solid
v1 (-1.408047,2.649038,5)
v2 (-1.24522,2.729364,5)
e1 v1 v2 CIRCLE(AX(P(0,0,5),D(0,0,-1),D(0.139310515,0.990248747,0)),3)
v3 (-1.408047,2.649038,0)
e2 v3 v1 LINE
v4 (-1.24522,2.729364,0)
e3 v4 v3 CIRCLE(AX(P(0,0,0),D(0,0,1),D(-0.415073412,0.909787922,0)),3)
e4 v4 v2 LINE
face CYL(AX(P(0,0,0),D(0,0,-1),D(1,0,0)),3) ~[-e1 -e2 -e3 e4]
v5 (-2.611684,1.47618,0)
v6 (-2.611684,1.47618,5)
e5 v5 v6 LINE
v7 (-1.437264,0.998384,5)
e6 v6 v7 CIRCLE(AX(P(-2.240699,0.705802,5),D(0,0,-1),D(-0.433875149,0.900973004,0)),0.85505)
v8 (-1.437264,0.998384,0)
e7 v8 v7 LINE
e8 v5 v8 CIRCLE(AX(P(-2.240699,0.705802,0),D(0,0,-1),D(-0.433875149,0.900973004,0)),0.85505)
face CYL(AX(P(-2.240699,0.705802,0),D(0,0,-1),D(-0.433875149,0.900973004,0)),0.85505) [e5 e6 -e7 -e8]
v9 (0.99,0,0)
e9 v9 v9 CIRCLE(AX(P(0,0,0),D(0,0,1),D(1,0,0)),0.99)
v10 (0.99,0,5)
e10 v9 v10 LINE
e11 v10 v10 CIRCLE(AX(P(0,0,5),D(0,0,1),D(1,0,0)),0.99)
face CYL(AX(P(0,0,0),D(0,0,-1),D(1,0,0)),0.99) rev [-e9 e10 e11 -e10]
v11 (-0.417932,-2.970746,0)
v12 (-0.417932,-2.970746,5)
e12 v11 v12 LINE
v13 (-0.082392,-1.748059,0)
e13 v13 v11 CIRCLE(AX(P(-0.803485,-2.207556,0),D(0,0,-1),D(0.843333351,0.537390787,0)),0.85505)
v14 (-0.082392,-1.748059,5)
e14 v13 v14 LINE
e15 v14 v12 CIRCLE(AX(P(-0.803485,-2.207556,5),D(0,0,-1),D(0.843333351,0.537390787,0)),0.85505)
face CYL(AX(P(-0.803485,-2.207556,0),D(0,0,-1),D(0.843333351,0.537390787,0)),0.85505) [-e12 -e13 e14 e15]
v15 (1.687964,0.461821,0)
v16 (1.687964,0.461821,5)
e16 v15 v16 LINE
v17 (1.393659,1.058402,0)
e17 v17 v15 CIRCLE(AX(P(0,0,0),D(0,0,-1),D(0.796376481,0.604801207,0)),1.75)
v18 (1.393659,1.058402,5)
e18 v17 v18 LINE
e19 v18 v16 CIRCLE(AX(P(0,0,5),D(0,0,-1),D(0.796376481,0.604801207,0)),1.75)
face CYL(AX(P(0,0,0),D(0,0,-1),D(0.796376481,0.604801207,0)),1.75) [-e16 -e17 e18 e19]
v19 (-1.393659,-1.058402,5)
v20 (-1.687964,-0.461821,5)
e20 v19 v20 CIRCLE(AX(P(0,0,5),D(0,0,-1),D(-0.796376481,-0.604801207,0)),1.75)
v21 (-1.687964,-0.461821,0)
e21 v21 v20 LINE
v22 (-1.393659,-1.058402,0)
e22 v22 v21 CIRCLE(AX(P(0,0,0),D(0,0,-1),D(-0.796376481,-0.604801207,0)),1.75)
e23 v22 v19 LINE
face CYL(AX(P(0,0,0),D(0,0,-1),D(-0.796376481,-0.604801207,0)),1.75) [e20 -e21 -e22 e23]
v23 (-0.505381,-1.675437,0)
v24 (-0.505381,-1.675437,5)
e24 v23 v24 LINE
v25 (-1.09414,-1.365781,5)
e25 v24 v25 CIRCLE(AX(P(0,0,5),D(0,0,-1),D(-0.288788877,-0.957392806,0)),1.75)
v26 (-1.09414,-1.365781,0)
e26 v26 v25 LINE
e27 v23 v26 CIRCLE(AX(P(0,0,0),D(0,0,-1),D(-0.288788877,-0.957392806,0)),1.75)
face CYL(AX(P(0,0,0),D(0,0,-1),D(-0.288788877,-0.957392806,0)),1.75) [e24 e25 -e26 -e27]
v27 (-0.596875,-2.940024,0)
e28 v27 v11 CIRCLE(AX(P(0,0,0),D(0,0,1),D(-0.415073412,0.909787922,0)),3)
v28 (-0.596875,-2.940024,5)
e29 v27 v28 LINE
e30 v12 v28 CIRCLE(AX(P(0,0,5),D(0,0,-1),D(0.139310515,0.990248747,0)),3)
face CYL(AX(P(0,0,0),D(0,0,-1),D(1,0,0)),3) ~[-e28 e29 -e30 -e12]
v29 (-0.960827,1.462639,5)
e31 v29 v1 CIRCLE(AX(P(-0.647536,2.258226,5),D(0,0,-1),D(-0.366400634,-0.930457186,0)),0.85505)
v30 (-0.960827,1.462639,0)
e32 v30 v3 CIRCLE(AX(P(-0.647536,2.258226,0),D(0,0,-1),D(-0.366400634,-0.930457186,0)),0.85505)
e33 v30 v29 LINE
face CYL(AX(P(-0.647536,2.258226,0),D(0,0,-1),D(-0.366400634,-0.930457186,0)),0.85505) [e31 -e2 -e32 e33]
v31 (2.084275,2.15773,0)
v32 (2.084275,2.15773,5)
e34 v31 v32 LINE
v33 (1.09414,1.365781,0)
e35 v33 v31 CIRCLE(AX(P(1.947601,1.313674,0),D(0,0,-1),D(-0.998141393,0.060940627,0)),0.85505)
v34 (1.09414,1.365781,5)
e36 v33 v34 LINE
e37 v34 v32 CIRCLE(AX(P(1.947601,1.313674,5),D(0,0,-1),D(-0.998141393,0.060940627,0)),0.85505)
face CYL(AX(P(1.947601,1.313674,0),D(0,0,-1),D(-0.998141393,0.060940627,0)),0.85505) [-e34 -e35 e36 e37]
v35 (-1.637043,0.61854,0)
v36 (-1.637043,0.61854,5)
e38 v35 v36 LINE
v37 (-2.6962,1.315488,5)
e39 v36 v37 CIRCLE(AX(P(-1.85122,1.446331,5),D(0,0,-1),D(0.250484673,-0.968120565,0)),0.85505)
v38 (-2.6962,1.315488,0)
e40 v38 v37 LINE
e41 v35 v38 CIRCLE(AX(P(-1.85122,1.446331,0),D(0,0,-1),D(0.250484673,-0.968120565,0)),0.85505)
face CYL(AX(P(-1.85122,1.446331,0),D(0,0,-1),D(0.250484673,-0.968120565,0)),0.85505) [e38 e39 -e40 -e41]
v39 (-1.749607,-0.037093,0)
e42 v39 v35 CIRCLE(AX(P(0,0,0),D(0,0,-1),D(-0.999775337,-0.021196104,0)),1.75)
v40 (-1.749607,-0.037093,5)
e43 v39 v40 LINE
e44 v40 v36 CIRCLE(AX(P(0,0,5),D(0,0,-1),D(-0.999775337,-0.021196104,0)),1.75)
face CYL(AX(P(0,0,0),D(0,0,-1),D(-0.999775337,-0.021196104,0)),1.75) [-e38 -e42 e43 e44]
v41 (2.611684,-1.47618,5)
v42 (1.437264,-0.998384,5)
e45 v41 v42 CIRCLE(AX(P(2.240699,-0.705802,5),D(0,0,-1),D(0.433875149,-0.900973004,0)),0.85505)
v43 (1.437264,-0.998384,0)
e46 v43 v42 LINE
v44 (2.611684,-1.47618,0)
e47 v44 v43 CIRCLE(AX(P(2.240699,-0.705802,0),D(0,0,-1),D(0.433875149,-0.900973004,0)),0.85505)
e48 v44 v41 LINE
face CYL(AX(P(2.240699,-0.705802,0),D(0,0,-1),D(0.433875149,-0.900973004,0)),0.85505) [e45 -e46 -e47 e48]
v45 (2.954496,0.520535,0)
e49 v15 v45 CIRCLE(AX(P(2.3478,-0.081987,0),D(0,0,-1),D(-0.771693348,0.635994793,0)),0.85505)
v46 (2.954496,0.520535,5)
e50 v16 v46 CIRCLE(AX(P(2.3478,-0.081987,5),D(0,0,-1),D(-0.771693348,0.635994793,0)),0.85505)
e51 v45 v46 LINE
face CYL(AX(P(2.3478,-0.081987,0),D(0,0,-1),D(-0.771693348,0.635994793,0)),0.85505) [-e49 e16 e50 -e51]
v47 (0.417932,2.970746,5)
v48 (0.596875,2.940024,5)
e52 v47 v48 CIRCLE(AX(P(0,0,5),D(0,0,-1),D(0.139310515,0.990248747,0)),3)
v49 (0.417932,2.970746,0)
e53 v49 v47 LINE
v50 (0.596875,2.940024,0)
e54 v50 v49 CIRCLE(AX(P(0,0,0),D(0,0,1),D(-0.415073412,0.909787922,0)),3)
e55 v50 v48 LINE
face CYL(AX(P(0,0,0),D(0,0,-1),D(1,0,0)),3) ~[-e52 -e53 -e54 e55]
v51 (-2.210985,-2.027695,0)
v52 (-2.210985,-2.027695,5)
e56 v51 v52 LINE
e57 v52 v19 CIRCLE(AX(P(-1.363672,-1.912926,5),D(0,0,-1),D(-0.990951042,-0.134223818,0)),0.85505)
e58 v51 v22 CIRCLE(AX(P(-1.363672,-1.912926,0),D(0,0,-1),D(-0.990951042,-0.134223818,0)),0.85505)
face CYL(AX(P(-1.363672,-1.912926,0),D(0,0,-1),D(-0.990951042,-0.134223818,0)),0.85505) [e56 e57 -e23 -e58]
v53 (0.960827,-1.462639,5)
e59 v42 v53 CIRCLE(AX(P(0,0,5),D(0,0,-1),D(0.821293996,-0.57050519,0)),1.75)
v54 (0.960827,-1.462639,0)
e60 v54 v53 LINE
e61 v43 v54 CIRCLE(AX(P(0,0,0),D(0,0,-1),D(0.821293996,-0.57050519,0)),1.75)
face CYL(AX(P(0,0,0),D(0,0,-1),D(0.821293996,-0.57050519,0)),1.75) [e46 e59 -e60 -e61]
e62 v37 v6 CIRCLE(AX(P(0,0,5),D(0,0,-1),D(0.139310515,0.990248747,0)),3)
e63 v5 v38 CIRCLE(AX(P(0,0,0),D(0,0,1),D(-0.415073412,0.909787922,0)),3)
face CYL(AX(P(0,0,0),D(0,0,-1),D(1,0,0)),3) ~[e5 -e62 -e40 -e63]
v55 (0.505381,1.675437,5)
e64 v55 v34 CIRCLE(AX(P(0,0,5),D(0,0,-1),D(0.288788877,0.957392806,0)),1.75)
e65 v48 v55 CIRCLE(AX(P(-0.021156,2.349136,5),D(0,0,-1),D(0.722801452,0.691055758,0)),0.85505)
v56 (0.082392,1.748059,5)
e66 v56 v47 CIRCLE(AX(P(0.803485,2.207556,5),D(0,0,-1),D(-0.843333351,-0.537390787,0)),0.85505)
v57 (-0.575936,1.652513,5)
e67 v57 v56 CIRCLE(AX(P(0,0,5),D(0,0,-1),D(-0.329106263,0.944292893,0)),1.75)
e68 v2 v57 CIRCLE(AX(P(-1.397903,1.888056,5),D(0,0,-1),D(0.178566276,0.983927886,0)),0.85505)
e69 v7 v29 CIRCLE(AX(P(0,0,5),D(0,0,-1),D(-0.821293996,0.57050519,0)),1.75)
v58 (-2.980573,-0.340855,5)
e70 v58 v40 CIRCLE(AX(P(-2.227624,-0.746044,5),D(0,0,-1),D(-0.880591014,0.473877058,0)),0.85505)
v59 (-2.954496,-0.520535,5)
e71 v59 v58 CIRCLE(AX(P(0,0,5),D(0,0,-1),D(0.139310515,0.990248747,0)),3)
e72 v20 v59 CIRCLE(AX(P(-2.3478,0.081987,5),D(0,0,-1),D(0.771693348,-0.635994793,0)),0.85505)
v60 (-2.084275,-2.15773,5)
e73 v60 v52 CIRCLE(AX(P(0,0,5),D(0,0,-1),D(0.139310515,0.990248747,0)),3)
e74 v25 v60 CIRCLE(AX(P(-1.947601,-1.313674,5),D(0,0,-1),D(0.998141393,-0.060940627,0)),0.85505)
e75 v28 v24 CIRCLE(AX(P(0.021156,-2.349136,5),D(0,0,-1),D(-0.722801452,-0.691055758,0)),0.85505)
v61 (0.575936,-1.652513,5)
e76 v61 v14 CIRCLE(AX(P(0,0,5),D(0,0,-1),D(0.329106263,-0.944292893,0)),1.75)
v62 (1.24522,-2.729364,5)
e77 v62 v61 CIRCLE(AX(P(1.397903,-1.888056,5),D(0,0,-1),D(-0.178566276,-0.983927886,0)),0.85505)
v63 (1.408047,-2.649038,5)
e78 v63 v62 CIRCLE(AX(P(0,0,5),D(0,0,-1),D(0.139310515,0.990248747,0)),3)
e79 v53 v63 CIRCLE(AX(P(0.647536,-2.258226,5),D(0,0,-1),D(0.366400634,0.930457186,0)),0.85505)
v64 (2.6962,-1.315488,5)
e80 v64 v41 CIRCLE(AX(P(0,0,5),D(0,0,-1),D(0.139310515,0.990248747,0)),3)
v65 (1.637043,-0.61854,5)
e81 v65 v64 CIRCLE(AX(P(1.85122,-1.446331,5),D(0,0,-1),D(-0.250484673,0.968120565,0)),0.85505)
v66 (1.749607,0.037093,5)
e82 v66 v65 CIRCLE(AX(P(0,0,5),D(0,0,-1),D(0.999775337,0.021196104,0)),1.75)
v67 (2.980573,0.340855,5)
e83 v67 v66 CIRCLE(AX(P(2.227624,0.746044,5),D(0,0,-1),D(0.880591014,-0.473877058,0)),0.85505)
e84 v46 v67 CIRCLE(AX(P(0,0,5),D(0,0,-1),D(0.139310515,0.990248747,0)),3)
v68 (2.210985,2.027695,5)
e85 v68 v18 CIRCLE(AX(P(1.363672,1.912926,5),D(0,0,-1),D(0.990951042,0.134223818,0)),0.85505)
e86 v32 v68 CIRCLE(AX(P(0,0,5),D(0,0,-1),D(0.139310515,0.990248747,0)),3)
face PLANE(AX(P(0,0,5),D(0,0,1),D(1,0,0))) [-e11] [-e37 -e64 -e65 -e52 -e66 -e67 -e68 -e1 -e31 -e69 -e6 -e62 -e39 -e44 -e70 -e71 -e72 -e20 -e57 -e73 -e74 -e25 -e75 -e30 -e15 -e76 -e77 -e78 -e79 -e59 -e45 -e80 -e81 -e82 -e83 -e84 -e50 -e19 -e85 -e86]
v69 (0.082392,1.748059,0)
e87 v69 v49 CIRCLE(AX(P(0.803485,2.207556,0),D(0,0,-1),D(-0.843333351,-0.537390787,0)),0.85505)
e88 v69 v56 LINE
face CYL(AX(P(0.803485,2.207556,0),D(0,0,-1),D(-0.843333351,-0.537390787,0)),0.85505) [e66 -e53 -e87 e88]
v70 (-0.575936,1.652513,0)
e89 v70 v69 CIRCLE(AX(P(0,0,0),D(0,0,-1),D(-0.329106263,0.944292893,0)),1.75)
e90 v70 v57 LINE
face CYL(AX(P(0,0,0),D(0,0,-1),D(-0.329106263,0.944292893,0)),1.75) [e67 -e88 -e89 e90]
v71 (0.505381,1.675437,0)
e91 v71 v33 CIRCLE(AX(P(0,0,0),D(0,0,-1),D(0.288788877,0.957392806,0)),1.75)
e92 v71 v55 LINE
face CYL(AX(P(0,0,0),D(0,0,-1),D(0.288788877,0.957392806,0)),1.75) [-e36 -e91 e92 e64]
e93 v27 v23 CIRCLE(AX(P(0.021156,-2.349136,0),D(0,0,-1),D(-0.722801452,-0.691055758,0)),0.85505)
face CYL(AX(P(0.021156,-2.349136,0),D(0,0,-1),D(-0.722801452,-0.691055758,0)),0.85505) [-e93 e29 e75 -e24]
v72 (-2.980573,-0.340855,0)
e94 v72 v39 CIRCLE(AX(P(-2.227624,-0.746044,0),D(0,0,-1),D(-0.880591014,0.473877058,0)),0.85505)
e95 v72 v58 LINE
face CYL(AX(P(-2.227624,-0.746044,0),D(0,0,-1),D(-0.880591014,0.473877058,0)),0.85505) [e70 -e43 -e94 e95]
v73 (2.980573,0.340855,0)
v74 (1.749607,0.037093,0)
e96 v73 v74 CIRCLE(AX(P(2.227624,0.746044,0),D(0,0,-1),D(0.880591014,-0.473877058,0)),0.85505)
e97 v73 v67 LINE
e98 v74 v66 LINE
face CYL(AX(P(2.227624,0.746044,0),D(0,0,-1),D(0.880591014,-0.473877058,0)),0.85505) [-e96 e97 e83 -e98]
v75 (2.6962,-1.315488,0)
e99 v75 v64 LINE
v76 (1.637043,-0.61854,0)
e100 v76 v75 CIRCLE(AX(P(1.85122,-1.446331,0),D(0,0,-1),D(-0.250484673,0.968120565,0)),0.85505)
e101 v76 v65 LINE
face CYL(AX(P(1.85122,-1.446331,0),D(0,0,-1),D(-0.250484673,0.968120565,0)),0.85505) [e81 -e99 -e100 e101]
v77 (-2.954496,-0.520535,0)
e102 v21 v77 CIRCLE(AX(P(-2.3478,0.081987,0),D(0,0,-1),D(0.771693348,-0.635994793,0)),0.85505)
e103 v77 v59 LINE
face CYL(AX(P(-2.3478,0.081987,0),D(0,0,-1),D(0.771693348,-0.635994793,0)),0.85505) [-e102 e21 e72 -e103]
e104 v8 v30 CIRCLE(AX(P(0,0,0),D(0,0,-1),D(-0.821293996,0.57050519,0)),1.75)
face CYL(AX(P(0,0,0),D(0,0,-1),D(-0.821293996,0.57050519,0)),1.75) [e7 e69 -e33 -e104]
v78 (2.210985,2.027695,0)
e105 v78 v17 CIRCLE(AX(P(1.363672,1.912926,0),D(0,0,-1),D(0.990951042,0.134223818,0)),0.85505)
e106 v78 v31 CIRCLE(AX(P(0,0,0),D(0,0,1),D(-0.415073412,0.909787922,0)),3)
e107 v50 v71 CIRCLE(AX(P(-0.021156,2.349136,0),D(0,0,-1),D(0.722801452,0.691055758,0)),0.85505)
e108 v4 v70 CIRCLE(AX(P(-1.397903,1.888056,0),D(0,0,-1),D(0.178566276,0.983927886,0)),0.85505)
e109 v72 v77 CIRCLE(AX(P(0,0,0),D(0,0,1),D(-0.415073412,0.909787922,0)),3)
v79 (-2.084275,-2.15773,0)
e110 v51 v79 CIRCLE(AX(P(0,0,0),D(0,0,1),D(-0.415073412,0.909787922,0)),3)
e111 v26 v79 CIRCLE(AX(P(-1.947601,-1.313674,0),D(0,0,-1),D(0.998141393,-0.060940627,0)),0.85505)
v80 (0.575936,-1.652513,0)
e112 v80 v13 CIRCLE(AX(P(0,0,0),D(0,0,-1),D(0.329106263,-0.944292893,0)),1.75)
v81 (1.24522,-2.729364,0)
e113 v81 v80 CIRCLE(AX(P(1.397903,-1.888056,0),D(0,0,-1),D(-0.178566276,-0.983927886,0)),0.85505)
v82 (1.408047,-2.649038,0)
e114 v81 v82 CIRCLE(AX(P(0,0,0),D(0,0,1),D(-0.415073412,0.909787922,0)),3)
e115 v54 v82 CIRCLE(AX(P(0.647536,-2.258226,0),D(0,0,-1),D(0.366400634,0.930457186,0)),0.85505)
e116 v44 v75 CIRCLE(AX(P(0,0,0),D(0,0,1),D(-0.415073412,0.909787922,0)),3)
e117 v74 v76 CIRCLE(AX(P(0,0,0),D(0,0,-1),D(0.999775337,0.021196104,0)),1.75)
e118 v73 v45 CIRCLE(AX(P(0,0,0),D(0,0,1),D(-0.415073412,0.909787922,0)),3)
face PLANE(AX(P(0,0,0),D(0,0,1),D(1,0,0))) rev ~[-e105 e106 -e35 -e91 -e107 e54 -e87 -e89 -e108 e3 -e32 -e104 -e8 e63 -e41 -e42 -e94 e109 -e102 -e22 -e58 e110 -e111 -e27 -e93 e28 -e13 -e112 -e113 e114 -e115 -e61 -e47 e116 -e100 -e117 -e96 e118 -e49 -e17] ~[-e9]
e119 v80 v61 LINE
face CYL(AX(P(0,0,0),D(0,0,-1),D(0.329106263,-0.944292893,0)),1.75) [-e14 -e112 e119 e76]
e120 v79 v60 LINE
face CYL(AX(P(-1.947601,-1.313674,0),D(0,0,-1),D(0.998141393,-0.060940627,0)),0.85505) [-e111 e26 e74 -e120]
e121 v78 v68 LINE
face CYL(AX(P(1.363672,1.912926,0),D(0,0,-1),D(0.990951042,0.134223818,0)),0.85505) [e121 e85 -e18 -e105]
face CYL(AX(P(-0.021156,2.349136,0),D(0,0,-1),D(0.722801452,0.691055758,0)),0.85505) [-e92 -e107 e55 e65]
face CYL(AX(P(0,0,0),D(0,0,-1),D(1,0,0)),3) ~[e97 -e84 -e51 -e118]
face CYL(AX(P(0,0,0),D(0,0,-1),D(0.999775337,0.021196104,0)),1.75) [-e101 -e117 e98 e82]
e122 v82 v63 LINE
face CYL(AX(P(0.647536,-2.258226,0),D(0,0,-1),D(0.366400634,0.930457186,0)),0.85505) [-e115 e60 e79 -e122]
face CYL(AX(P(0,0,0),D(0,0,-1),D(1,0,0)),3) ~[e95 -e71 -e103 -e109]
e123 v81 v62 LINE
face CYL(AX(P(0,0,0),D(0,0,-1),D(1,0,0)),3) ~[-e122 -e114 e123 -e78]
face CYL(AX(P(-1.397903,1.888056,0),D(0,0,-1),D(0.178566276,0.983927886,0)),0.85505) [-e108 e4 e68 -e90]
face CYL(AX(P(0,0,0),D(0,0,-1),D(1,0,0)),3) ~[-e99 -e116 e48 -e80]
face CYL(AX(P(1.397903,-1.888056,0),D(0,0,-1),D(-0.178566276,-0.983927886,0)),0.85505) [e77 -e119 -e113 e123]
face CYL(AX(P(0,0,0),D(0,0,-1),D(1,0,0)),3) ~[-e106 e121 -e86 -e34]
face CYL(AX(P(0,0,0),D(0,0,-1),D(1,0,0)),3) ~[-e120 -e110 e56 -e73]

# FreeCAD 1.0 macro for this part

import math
import FreeCAD as App
import Part
import Sketcher
from FreeCAD import Vector

doc = App.newDocument("Part")
body = doc.addObject("PartDesign::Body", "Body")

# Sketch on XY plane
sketch1 = body.newObject("Sketcher::SketchObject", "Sketch")
sketch1.AttachmentSupport = (doc.getObject("XY_Plane"), [""])
sketch1.MapMode = "FlatFace"
sketch1.addGeometry(Part.Circle(Vector(0, 0, 0), Vector(0, 0, 1), 3), False)
sketch1.addGeometry(Part.Circle(Vector(0, 0, 0), Vector(0, 0, 1), 0.99), False)
sketch1.addConstraint(Sketcher.Constraint("Coincident", 0, 3, -1, 1))
sketch1.addConstraint(Sketcher.Constraint("Coincident", 1, 3, -1, 1))
sketch1.addConstraint(Sketcher.Constraint("Diameter", 0, 6.0))
sketch1.addConstraint(Sketcher.Constraint("Diameter", 1, 1.98))
pad1 = body.newObject("PartDesign::Pad", "Pad")
pad1.Profile = sketch1
pad1.Length = 5

# Sketch on XY plane
sketch2 = body.newObject("Sketcher::SketchObject", "Sketch001")
sketch2.AttachmentSupport = (doc.getObject("XY_Plane"), [""])
sketch2.MapMode = "FlatFace"
sketch2.addGeometry(Part.ArcOfCircle(Part.Circle(Vector(0, 0, 0), Vector(0, 0, 1), 3), math.radians(81.992049), math.radians(114.52394)), False)
sketch2.addGeometry(Part.ArcOfCircle(Part.Circle(Vector(-1.397903, 1.888056, 0), Vector(0, 0, 1), 0.85505), math.radians(-15.990206), math.radians(79.713739)), False)
sketch2.addGeometry(Part.ArcOfCircle(Part.Circle(Vector(0, 0, 0), Vector(0, 0, 1), 1.75), math.radians(87.301451), math.radians(109.214538)), False)
sketch2.addGeometry(Part.ArcOfCircle(Part.Circle(Vector(0.803485, 2.207556, 0), Vector(0, 0, 1), 0.85505), math.radians(116.80225), math.radians(212.506194)), False)
sketch2.addConstraint(Sketcher.Constraint("Coincident", 0, 2, 1, 2))
sketch2.addConstraint(Sketcher.Constraint("Coincident", 1, 1, 2, 2))
sketch2.addConstraint(Sketcher.Constraint("Coincident", 2, 1, 3, 2))
sketch2.addConstraint(Sketcher.Constraint("Coincident", 3, 1, 0, 1))
sketch2.addConstraint(Sketcher.Constraint("Coincident", 0, 3, -1, 1))
sketch2.addConstraint(Sketcher.Constraint("Coincident", 2, 3, -1, 1))
sketch2.addConstraint(Sketcher.Constraint("Equal", 1, 3))
sketch2.addConstraint(Sketcher.Constraint("Radius", 0, 3.0))
sketch2.addConstraint(Sketcher.Constraint("Radius", 2, 1.75))
sketch2.addConstraint(Sketcher.Constraint("Radius", 1, 0.85505))
sketch2.addConstraint(Sketcher.Constraint("DistanceY", 1, 3, 3, 3, 0.3195))
sketch2.addConstraint(Sketcher.Constraint("DistanceX", 0, 2, -1, 1, 1.24522))
sketch2.addConstraint(Sketcher.Constraint("DistanceY", -1, 1, 2, 1, 1.748059))
sketch2.addConstraint(Sketcher.Constraint("DistanceX", -1, 1, 3, 1, 0.417932))
pocket1 = body.newObject("PartDesign::Pocket", "Pocket")
pocket1.Profile = sketch2
pocket1.Length = 5
pocket1.Reversed = True
doc.recompute()

polarpattern = body.newObject("PartDesign::PolarPattern", "PolarPattern")
polarpattern.Originals = [pocket1]
polarpattern.Axis = (doc.getObject("Z_Axis"), [""])
polarpattern.Angle = 360
polarpattern.Occurrences = 10
body.Tip = polarpattern

doc.recompute()
